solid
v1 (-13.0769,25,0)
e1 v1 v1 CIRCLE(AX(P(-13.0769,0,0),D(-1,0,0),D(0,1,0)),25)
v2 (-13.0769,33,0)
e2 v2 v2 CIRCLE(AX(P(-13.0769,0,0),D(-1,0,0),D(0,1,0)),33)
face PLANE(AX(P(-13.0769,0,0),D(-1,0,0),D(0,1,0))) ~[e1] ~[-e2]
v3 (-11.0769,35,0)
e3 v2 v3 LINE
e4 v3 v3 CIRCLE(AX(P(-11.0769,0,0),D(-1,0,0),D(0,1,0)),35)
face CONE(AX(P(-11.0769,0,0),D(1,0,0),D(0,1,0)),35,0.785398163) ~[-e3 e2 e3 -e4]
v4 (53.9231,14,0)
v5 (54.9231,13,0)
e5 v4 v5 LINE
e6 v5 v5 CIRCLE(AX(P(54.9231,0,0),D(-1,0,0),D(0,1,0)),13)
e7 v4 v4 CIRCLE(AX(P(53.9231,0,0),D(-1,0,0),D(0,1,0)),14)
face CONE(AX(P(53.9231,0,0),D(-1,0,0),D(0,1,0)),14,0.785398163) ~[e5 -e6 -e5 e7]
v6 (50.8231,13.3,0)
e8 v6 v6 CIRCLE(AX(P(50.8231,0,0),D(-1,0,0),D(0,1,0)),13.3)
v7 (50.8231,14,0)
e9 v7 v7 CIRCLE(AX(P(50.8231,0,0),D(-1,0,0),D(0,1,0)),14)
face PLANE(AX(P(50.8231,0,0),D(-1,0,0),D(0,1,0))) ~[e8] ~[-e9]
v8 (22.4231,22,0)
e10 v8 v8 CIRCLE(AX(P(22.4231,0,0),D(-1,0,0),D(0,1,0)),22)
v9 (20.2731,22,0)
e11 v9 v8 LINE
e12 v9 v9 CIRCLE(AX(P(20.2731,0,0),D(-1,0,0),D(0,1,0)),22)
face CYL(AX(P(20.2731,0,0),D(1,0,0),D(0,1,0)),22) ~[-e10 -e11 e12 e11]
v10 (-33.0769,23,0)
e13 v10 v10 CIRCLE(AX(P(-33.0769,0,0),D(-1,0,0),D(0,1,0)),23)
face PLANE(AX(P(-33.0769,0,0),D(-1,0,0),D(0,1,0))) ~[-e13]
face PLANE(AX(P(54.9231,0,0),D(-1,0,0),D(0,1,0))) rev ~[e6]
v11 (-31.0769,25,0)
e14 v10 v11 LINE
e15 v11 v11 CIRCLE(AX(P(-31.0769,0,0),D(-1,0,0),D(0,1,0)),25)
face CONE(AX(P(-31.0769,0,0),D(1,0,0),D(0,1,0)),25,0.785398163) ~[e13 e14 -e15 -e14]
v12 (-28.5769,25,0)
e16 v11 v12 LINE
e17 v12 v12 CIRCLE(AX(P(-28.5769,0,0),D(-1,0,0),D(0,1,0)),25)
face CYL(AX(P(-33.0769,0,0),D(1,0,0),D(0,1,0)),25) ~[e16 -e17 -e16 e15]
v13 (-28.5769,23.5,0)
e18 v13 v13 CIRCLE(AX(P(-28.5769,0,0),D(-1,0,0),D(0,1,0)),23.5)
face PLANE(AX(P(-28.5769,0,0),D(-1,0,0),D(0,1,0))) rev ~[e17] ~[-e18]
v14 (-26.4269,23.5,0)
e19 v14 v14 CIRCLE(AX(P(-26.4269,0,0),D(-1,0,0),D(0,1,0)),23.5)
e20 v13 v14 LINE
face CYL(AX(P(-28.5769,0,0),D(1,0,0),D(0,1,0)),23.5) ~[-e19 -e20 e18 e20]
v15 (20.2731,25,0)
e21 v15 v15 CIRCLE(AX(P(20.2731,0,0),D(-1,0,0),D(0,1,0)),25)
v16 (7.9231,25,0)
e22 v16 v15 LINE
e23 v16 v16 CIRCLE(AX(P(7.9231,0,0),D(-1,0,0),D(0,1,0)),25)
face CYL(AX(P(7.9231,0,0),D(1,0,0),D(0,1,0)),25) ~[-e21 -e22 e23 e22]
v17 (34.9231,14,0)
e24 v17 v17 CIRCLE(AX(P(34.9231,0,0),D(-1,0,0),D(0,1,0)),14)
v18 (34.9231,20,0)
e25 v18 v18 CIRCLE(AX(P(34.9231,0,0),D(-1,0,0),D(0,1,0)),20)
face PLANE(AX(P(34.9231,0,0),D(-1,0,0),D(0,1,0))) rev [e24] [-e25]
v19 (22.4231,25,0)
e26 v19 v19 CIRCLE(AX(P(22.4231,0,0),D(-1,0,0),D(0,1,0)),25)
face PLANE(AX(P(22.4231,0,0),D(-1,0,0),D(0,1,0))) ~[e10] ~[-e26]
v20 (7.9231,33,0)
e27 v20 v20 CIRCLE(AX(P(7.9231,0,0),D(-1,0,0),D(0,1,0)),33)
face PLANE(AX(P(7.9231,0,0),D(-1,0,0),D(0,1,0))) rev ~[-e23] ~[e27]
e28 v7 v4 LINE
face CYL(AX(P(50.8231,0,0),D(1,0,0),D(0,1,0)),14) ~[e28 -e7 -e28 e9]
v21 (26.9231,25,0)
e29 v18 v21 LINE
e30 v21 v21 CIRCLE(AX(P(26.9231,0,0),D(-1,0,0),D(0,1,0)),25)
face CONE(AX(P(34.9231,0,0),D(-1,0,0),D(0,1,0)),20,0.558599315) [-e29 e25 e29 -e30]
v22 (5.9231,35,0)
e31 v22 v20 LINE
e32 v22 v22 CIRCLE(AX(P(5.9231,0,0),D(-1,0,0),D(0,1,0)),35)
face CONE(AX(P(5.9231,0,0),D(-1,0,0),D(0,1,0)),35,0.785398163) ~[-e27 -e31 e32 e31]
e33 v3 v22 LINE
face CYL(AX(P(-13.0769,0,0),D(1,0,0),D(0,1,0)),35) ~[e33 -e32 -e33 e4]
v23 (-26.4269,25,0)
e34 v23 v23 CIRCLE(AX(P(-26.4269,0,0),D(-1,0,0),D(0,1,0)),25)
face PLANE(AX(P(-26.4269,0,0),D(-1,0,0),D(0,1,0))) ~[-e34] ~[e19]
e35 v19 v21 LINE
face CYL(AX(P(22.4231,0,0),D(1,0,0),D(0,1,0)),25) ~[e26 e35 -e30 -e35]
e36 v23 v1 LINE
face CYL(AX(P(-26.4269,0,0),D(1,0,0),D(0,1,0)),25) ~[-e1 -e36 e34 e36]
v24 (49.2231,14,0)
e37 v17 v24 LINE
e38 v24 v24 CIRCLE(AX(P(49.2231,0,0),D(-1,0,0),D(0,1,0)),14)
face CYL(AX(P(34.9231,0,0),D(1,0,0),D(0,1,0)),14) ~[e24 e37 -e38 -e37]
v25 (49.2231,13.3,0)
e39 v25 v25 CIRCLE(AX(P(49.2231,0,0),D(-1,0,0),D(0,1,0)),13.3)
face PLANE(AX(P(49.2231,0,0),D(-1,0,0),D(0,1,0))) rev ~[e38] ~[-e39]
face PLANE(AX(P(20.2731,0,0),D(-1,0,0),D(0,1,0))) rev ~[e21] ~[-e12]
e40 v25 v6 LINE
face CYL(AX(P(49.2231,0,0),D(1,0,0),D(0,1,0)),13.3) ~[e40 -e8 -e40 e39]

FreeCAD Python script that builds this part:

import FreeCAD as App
import Part
import Sketcher


def edges_at(feature, points):
    """Names of the edges that pass closest to the given points."""
    edges = feature.Shape.Edges
    near = lambda p: min(range(len(edges)), key=lambda i: edges[i].distToShape(Part.Vertex(*p))[0])
    return sorted({f"Edge{near(p) + 1}" for p in points})

doc = App.newDocument("Part")
body = doc.addObject("PartDesign::Body", "Body")

# Sketch on XY plane
sketch1 = doc.addObject("Sketcher::SketchObject", "Sketch")
body.addObject(sketch1)
sketch1.AttachmentSupport = (doc.XY_Plane, [""])
sketch1.MapMode = "FlatFace"
sketch1.addGeometry(Part.LineSegment(App.Vector(-33.0769, 25, 0), App.Vector(-33.0769, 0, 0)), False)
sketch1.addGeometry(Part.LineSegment(App.Vector(-33.0769, 0, 0), App.Vector(54.9231, 0, 0)), False)
sketch1.addGeometry(Part.LineSegment(App.Vector(54.9231, 0, 0), App.Vector(54.9231, 14, 0)), False)
sketch1.addGeometry(Part.LineSegment(App.Vector(54.9231, 14, 0), App.Vector(50.8231, 14, 0)), False)
sketch1.addGeometry(Part.LineSegment(App.Vector(50.8231, 14, 0), App.Vector(50.8231, 13.3, 0)), False)
sketch1.addGeometry(Part.LineSegment(App.Vector(50.8231, 13.3, 0), App.Vector(49.2231, 13.3, 0)), False)
sketch1.addGeometry(Part.LineSegment(App.Vector(49.2231, 13.3, 0), App.Vector(49.2231, 14, 0)), False)
sketch1.addGeometry(Part.LineSegment(App.Vector(49.2231, 14, 0), App.Vector(34.9231, 14, 0)), False)
sketch1.addGeometry(Part.LineSegment(App.Vector(34.9231, 14, 0), App.Vector(34.9231, 20, 0)), False)
sketch1.addGeometry(Part.LineSegment(App.Vector(34.9231, 20, 0), App.Vector(26.9231, 25, 0)), False)
sketch1.addGeometry(Part.LineSegment(App.Vector(26.9231, 25, 0), App.Vector(22.4231, 25, 0)), False)
sketch1.addGeometry(Part.LineSegment(App.Vector(22.4231, 25, 0), App.Vector(22.4231, 22, 0)), False)
sketch1.addGeometry(Part.LineSegment(App.Vector(22.4231, 22, 0), App.Vector(20.2731, 22, 0)), False)
sketch1.addGeometry(Part.LineSegment(App.Vector(20.2731, 22, 0), App.Vector(20.2731, 25, 0)), False)
sketch1.addGeometry(Part.LineSegment(App.Vector(20.2731, 25, 0), App.Vector(7.9231, 25, 0)), False)
sketch1.addGeometry(Part.LineSegment(App.Vector(7.9231, 25, 0), App.Vector(7.9231, 35, 0)), False)
sketch1.addGeometry(Part.LineSegment(App.Vector(7.9231, 35, 0), App.Vector(-13.0769, 35, 0)), False)
sketch1.addGeometry(Part.LineSegment(App.Vector(-13.0769, 35, 0), App.Vector(-13.0769, 25, 0)), False)
sketch1.addGeometry(Part.LineSegment(App.Vector(-13.0769, 25, 0), App.Vector(-26.4269, 25, 0)), False)
sketch1.addGeometry(Part.LineSegment(App.Vector(-26.4269, 25, 0), App.Vector(-26.4269, 23.5, 0)), False)
sketch1.addGeometry(Part.LineSegment(App.Vector(-26.4269, 23.5, 0), App.Vector(-28.5769, 23.5, 0)), False)
sketch1.addGeometry(Part.LineSegment(App.Vector(-28.5769, 23.5, 0), App.Vector(-28.5769, 25, 0)), False)
sketch1.addGeometry(Part.LineSegment(App.Vector(-28.5769, 25, 0), App.Vector(-33.0769, 25, 0)), False)
sketch1.addConstraint(Sketcher.Constraint("Coincident", 0, 2, 1, 1))
sketch1.addConstraint(Sketcher.Constraint("Coincident", 1, 2, 2, 1))
sketch1.addConstraint(Sketcher.Constraint("Coincident", 2, 2, 3, 1))
sketch1.addConstraint(Sketcher.Constraint("Coincident", 3, 2, 4, 1))
sketch1.addConstraint(Sketcher.Constraint("Coincident", 4, 2, 5, 1))
sketch1.addConstraint(Sketcher.Constraint("Coincident", 5, 2, 6, 1))
sketch1.addConstraint(Sketcher.Constraint("Coincident", 6, 2, 7, 1))
sketch1.addConstraint(Sketcher.Constraint("Coincident", 7, 2, 8, 1))
sketch1.addConstraint(Sketcher.Constraint("Coincident", 8, 2, 9, 1))
sketch1.addConstraint(Sketcher.Constraint("Coincident", 9, 2, 10, 1))
sketch1.addConstraint(Sketcher.Constraint("Coincident", 10, 2, 11, 1))
sketch1.addConstraint(Sketcher.Constraint("Coincident", 11, 2, 12, 1))
sketch1.addConstraint(Sketcher.Constraint("Coincident", 12, 2, 13, 1))
sketch1.addConstraint(Sketcher.Constraint("Coincident", 13, 2, 14, 1))
sketch1.addConstraint(Sketcher.Constraint("Coincident", 14, 2, 15, 1))
sketch1.addConstraint(Sketcher.Constraint("Coincident", 15, 2, 16, 1))
sketch1.addConstraint(Sketcher.Constraint("Coincident", 16, 2, 17, 1))
sketch1.addConstraint(Sketcher.Constraint("Coincident", 17, 2, 18, 1))
sketch1.addConstraint(Sketcher.Constraint("Coincident", 18, 2, 19, 1))
sketch1.addConstraint(Sketcher.Constraint("Coincident", 19, 2, 20, 1))
sketch1.addConstraint(Sketcher.Constraint("Coincident", 20, 2, 21, 1))
sketch1.addConstraint(Sketcher.Constraint("Coincident", 21, 2, 22, 1))
sketch1.addConstraint(Sketcher.Constraint("Coincident", 22, 2, 0, 1))
sketch1.addConstraint(Sketcher.Constraint("Vertical", 0))
sketch1.addConstraint(Sketcher.Constraint("Horizontal", 1))
sketch1.addConstraint(Sketcher.Constraint("Vertical", 2))
sketch1.addConstraint(Sketcher.Constraint("Horizontal", 3))
sketch1.addConstraint(Sketcher.Constraint("Vertical", 4))
sketch1.addConstraint(Sketcher.Constraint("Horizontal", 5))
sketch1.addConstraint(Sketcher.Constraint("Vertical", 6))
sketch1.addConstraint(Sketcher.Constraint("Horizontal", 7))
sketch1.addConstraint(Sketcher.Constraint("Vertical", 8))
sketch1.addConstraint(Sketcher.Constraint("Horizontal", 10))
sketch1.addConstraint(Sketcher.Constraint("Vertical", 11))
sketch1.addConstraint(Sketcher.Constraint("Horizontal", 12))
sketch1.addConstraint(Sketcher.Constraint("Vertical", 13))
sketch1.addConstraint(Sketcher.Constraint("Horizontal", 14))
sketch1.addConstraint(Sketcher.Constraint("Vertical", 15))
sketch1.addConstraint(Sketcher.Constraint("Horizontal", 16))
sketch1.addConstraint(Sketcher.Constraint("Vertical", 17))
sketch1.addConstraint(Sketcher.Constraint("Horizontal", 18))
sketch1.addConstraint(Sketcher.Constraint("Vertical", 19))
sketch1.addConstraint(Sketcher.Constraint("Horizontal", 20))
sketch1.addConstraint(Sketcher.Constraint("Vertical", 21))
sketch1.addConstraint(Sketcher.Constraint("Horizontal", 22))
sketch1.addConstraint(Sketcher.Constraint("PointOnObject", 0, 2, -1))
sketch1.addConstraint(Sketcher.Constraint("Horizontal", 3, 2, 6, 2))
sketch1.addConstraint(Sketcher.Constraint("Horizontal", 10, 2, 13, 2))
sketch1.addConstraint(Sketcher.Constraint("Horizontal", 14, 2, 17, 2))
sketch1.addConstraint(Sketcher.Constraint("Horizontal", 18, 2, 21, 2))
sketch1.addConstraint(Sketcher.Constraint("Equal", 12, 20))
sketch1.addConstraint(Sketcher.Constraint("Equal", 10, 22))
sketch1.addConstraint(Sketcher.Constraint("DistanceX", 1, 1, 1, 2, 88.0))
sketch1.addConstraint(Sketcher.Constraint("DistanceX", 5, 2, 5, 1, 1.6))
sketch1.addConstraint(Sketcher.Constraint("DistanceY", -1, 1, 8, 2, 20.0))
sketch1.addConstraint(Sketcher.Constraint("DistanceX", 7, 2, 2, 2, 20.0))
sketch1.addConstraint(Sketcher.Constraint("DistanceX", 0, 2, 17, 2, 20.0))
sketch1.addConstraint(Sketcher.Constraint("DistanceX", 12, 2, 12, 1, 2.15))
sketch1.addConstraint(Sketcher.Constraint("DistanceX", 5, 2, 2, 2, 5.7))
sketch1.addConstraint(Sketcher.Constraint("DistanceX", 16, 2, 16, 1, 21.0))
sketch1.addConstraint(Sketcher.Constraint("DistanceY", 0, 2, 0, 1, 25.0))
sketch1.addConstraint(Sketcher.Constraint("DistanceY", 2, 1, 2, 2, 14.0))
sketch1.addConstraint(Sketcher.Constraint("DistanceY", 11, 2, 11, 1, 3.0))
sketch1.addConstraint(Sketcher.Constraint("DistanceY", 15, 1, 15, 2, 10.0))
sketch1.addConstraint(Sketcher.Constraint("DistanceX", 12, 2, 9, 2, 6.65))
sketch1.addConstraint(Sketcher.Constraint("DistanceY", 4, 2, 4, 1, 0.7))
sketch1.addConstraint(Sketcher.Constraint("DistanceY", 19, 2, 19, 1, 1.5))
sketch1.addConstraint(Sketcher.Constraint("DistanceX", 9, 2, 8, 2, 8.0))
sketch1.addConstraint(Sketcher.Constraint("DistanceX", 0, 2, -1, 1, 33.077))
revolution = doc.addObject("PartDesign::Revolution", "Revolution")
body.addObject(revolution)
revolution.Profile = sketch1
revolution.ReferenceAxis = (sketch1, ["H_Axis"])
revolution.Angle = 360
doc.recompute()

chamfer = doc.addObject("PartDesign::Chamfer", "Chamfer")
body.addObject(chamfer)
chamfer.Base = (revolution, edges_at(revolution, [(-33.077, -25, 0)]))
chamfer.Size = 2
doc.recompute()

chamfer2 = doc.addObject("PartDesign::Chamfer", "Chamfer001")
body.addObject(chamfer2)
chamfer2.Base = (chamfer, edges_at(chamfer, [(-13.077, -35, 0)]))
chamfer2.Size = 2
doc.recompute()

chamfer3 = doc.addObject("PartDesign::Chamfer", "Chamfer002")
body.addObject(chamfer3)
chamfer3.Base = (chamfer2, edges_at(chamfer2, [(7.923, -35, 0)]))
chamfer3.Size = 2
doc.recompute()

chamfer4 = doc.addObject("PartDesign::Chamfer", "Chamfer003")
body.addObject(chamfer4)
chamfer4.Base = (chamfer3, edges_at(chamfer3, [(54.923, -14, 0)]))
chamfer4.Size = 1

doc.recompute()
